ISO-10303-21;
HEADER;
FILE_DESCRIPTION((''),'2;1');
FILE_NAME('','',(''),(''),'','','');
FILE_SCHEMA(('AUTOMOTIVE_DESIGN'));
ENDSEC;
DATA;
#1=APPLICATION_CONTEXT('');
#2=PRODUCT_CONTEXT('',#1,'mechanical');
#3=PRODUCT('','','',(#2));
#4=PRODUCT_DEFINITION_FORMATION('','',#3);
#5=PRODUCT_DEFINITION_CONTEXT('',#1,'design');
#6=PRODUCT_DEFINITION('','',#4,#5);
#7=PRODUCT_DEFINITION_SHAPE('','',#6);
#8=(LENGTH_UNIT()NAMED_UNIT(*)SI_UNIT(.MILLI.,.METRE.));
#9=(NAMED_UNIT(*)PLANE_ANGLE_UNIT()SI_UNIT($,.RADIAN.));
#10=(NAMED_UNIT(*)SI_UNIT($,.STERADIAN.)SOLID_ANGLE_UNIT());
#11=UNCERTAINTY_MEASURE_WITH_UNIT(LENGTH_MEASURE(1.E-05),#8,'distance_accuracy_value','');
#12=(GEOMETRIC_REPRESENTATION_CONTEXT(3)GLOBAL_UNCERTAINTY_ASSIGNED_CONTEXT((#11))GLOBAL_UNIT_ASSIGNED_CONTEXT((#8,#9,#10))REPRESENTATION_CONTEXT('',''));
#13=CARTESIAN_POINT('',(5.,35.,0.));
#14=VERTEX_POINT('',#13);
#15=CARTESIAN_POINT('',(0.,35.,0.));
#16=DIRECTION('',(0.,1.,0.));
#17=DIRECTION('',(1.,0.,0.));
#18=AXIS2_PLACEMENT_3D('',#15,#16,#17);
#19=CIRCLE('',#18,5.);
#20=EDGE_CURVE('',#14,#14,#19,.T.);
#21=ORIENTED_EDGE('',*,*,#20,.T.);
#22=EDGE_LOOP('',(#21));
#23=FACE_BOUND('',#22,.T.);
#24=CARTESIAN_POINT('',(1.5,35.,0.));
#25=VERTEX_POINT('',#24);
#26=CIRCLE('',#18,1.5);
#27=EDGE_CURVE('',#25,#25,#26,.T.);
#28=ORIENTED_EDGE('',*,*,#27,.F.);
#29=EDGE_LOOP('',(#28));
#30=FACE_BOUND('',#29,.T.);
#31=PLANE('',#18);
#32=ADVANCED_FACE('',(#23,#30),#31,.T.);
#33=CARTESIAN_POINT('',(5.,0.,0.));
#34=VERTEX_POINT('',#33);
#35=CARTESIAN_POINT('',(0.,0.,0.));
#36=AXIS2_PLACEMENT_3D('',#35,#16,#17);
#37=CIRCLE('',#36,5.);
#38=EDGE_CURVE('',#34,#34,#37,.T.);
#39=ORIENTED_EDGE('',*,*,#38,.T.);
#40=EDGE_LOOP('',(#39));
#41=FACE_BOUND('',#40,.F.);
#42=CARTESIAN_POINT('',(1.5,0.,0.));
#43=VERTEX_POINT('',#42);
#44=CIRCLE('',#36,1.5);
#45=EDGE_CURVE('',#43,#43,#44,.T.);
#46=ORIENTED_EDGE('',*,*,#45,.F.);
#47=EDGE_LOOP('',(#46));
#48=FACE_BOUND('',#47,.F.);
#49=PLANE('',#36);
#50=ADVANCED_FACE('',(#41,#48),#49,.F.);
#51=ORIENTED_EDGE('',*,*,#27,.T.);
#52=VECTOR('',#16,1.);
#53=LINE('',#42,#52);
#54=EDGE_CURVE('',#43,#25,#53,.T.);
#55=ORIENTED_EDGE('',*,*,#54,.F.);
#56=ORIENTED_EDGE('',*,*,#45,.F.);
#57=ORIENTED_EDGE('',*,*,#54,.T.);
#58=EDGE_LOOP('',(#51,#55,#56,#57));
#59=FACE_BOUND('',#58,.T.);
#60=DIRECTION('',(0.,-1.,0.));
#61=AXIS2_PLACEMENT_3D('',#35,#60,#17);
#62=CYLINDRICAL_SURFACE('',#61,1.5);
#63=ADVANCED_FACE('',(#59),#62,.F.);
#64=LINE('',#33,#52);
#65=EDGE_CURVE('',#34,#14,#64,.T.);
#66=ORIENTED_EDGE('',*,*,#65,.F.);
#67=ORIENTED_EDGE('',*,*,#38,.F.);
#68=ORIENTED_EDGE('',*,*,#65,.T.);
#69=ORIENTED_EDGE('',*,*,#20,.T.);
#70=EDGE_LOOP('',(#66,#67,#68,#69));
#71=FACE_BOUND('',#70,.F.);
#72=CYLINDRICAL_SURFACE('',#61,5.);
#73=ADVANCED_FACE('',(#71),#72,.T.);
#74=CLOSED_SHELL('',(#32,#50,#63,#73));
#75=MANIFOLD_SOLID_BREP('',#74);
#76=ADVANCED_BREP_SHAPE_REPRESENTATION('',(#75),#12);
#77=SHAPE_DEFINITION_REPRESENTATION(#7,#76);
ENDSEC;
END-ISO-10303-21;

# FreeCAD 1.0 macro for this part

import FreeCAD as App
import Part
import Sketcher
from FreeCAD import Vector
Q = App.Units.Quantity

doc = App.newDocument("Part")
body = doc.addObject("PartDesign::Body", "Body")

# Sketch on XZ plane
sketch1 = body.newObject("Sketcher::SketchObject", "Sketch")
sketch1.AttachmentSupport = (doc.getObject("XZ_Plane"), [""])
sketch1.MapMode = "FlatFace"
sketch1.addGeometry(Part.Circle(Vector(0, 0, 0), Vector(0, 0, 1), 5), False)
sketch1.addGeometry(Part.Circle(Vector(0, 0, 0), Vector(0, 0, 1), 1.5), False)
sketch1.addConstraint(Sketcher.Constraint("Coincident", 0, 3, -1, 1))
sketch1.addConstraint(Sketcher.Constraint("Coincident", 1, 3, -1, 1))
sketch1.addConstraint(Sketcher.Constraint("Diameter", 0, Q("10 mm")))
sketch1.addConstraint(Sketcher.Constraint("Diameter", 1, Q("3 mm")))
pad1 = body.newObject("PartDesign::Pad", "Pad")
pad1.Profile = sketch1
pad1.Length = 35
pad1.Reversed = True

doc.recompute()
